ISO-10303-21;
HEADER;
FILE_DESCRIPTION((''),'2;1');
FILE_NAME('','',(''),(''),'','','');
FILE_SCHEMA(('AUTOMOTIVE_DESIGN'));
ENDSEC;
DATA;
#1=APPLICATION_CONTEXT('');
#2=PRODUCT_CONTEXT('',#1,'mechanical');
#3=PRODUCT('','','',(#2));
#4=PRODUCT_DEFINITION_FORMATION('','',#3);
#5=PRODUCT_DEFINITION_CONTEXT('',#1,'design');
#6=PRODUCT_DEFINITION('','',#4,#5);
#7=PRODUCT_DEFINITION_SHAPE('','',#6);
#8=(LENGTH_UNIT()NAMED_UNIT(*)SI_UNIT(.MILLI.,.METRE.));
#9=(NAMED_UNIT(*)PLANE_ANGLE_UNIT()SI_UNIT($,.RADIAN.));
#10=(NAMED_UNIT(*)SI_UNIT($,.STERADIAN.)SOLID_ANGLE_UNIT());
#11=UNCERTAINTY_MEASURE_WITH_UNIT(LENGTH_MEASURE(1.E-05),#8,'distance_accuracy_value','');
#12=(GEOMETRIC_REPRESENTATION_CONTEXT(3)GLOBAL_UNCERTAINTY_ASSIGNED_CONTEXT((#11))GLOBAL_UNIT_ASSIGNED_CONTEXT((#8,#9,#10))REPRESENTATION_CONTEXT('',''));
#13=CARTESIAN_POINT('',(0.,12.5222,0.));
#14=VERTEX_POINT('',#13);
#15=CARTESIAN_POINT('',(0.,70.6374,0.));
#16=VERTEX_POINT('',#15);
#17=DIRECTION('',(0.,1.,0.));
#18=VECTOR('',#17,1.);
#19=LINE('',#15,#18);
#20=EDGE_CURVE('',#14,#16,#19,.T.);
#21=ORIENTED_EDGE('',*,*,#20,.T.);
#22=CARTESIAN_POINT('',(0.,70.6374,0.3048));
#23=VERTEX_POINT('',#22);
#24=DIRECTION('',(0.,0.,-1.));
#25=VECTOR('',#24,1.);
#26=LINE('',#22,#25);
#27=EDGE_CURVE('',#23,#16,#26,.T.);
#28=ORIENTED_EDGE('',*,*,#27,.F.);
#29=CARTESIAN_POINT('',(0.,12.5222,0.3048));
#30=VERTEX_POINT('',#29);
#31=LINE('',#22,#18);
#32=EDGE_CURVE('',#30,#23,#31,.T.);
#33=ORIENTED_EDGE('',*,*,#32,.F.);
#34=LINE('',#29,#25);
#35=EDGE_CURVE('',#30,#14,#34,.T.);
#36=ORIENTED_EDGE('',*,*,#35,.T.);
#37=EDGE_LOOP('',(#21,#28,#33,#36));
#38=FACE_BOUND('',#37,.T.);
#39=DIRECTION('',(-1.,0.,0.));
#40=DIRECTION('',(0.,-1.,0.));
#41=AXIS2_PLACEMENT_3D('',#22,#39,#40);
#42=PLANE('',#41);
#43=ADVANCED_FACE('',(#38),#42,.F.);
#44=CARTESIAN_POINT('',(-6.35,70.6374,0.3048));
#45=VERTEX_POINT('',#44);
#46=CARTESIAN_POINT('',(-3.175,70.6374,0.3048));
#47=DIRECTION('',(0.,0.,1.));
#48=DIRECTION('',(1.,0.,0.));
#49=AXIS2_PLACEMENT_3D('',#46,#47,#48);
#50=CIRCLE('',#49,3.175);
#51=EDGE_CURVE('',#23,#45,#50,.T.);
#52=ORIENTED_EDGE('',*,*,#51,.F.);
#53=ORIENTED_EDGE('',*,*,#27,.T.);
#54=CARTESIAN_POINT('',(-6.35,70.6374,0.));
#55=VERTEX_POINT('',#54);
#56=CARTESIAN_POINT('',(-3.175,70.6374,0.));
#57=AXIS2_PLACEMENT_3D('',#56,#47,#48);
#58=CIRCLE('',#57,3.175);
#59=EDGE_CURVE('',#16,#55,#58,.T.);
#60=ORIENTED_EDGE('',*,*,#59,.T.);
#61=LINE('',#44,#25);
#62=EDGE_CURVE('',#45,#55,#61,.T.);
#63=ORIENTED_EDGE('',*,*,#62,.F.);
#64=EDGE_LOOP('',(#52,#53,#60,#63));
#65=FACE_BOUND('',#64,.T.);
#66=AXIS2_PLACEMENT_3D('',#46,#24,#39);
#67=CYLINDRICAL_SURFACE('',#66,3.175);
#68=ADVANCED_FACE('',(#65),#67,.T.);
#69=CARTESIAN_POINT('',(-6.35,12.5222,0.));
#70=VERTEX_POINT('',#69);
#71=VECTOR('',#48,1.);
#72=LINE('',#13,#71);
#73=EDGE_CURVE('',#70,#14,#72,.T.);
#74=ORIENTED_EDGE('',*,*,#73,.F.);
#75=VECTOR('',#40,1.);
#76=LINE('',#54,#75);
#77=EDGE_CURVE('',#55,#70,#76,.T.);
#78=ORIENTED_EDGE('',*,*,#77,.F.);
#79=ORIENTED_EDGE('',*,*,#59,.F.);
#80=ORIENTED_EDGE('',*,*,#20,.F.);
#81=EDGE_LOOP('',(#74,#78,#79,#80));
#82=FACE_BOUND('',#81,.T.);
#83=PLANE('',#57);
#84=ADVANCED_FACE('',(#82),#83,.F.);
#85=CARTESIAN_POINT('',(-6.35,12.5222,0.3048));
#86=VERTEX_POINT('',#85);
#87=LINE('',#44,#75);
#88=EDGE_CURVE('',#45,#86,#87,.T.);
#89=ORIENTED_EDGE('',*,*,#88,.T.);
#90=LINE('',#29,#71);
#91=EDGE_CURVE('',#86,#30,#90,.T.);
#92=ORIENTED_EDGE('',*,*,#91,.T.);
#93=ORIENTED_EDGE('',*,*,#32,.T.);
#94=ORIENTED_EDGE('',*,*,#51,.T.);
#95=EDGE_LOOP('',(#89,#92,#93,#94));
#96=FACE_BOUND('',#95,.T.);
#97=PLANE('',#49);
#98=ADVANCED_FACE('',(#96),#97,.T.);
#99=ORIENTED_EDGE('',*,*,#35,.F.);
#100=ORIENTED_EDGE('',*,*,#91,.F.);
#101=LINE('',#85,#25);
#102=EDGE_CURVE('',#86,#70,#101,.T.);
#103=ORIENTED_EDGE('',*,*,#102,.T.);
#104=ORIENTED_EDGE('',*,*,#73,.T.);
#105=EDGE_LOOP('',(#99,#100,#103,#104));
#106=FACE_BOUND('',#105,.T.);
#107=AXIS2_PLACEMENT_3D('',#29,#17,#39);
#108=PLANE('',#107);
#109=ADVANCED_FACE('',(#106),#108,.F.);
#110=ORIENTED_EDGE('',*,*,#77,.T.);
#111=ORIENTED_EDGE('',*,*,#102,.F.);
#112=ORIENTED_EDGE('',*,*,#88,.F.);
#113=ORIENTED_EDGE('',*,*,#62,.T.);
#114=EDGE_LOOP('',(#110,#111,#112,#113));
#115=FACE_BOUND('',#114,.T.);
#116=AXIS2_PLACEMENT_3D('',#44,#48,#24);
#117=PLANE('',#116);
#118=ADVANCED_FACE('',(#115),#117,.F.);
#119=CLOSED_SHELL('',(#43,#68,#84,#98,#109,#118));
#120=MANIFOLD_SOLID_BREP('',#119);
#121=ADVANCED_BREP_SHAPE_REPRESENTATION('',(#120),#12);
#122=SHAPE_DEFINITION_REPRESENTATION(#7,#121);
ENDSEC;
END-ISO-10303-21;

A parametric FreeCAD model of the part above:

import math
import FreeCAD as App
import Part
import Sketcher
from FreeCAD import Vector
Q = App.Units.Quantity

doc = App.newDocument("Part")
body = doc.addObject("PartDesign::Body", "Body")

# Sketch on XY plane
sketch1 = doc.addObject("Sketcher::SketchObject", "Sketch")
body.addObject(sketch1)
sketch1.AttachmentSupport = (doc.XY_Plane, [""])
sketch1.MapMode = "FlatFace"
sketch1.addGeometry([
    Part.LineSegment(Vector(0, 12.5, 0), Vector(0, 70.6, 0)),
    Part.ArcOfCircle(Part.Circle(Vector(-3.2, 70.6, 0), Vector(0, 0, 1), 3.2), math.radians(0), math.radians(180)),
    Part.LineSegment(Vector(-6.3, 70.6, 0), Vector(-6.3, 12.5, 0)),
    Part.LineSegment(Vector(-6.3, 12.5, 0), Vector(0, 12.5, 0)),
], False)
sketch1.addConstraint([
    Sketcher.Constraint("Tangent", 0, 2, 1, 1),
    Sketcher.Constraint("Tangent", 1, 2, 2, 1),
    Sketcher.Constraint("Coincident", 2, 2, 3, 1),
    Sketcher.Constraint("Coincident", 3, 2, 0, 1),
    Sketcher.Constraint("Vertical", 0),
    Sketcher.Constraint("Vertical", 2),
    Sketcher.Constraint("Horizontal", 3),
    Sketcher.Constraint("PointOnObject", 0, 2, -2),
    Sketcher.Constraint("Radius", 1, Q("0.125 in")),
    Sketcher.Constraint("DistanceY", 0, 1, 0, 2, Q("2.288 in")),
    Sketcher.Constraint("DistanceY", -1, 1, 1, 3, Q("2.781 in")),
])
pad1 = doc.addObject("PartDesign::Pad", "Pad")
body.addObject(pad1)
pad1.Profile = sketch1
pad1.Length = Q("0.012 in")

doc.recompute()
